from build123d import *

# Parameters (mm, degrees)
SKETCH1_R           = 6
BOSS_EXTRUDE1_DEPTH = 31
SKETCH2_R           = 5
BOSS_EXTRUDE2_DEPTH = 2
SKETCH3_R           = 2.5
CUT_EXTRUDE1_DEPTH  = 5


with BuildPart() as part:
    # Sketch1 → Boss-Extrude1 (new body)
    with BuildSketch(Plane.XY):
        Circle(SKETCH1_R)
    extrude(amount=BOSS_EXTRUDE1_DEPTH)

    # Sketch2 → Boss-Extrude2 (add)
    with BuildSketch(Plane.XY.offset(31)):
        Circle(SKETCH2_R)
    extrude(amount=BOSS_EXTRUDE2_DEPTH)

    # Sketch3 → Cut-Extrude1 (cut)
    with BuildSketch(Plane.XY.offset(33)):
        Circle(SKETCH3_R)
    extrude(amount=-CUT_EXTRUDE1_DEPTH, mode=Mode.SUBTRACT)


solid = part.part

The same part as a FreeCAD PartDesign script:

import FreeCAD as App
import Part
import Sketcher

V = App.Vector
Q = App.Units.Quantity

doc = App.newDocument("Part")
body = doc.addObject("PartDesign::Body", "Body")

sketch1 = body.newObject("Sketcher::SketchObject", "Sketch")
sketch1.AttachmentSupport = (doc.getObject("XY_Plane"), [""])
sketch1.MapMode = "FlatFace"
sketch1.addGeometry(Part.Circle(V(0, 0, 0), V(0, 0, 1), 6), False)
sketch1.addConstraint(Sketcher.Constraint("Coincident", 0, 3, -1, 1))
sketch1.addConstraint(Sketcher.Constraint("Diameter", 0, Q("12 mm")))
pad1 = body.newObject("PartDesign::Pad", "Pad")
pad1.Profile = sketch1
pad1.Length = 31

sketch2 = body.newObject("Sketcher::SketchObject", "Sketch001")
sketch2.AttachmentSupport = (doc.getObject("XY_Plane"), [""])
sketch2.MapMode = "FlatFace"
sketch2.AttachmentOffset = App.Placement(V(0, 0, 31), App.Rotation())
sketch2.addGeometry(Part.Circle(V(0, 0, 0), V(0, 0, 1), 5), False)
sketch2.addConstraint(Sketcher.Constraint("Coincident", 0, 3, -1, 1))
sketch2.addConstraint(Sketcher.Constraint("Diameter", 0, Q("10 mm")))
pad2 = body.newObject("PartDesign::Pad", "Pad001")
pad2.Profile = sketch2
pad2.Length = 2

sketch3 = body.newObject("Sketcher::SketchObject", "Sketch002")
sketch3.AttachmentSupport = (doc.getObject("XY_Plane"), [""])
sketch3.MapMode = "FlatFace"
sketch3.AttachmentOffset = App.Placement(V(0, 0, 33), App.Rotation())
sketch3.addGeometry(Part.Circle(V(0, 0, 0), V(0, 0, 1), 2.5), False)
sketch3.addConstraint(Sketcher.Constraint("Coincident", 0, 3, -1, 1))
sketch3.addConstraint(Sketcher.Constraint("Diameter", 0, Q("5 mm")))
pocket1 = body.newObject("PartDesign::Pocket", "Pocket")
pocket1.Profile = sketch3
pocket1.Length = 5

doc.recompute()
